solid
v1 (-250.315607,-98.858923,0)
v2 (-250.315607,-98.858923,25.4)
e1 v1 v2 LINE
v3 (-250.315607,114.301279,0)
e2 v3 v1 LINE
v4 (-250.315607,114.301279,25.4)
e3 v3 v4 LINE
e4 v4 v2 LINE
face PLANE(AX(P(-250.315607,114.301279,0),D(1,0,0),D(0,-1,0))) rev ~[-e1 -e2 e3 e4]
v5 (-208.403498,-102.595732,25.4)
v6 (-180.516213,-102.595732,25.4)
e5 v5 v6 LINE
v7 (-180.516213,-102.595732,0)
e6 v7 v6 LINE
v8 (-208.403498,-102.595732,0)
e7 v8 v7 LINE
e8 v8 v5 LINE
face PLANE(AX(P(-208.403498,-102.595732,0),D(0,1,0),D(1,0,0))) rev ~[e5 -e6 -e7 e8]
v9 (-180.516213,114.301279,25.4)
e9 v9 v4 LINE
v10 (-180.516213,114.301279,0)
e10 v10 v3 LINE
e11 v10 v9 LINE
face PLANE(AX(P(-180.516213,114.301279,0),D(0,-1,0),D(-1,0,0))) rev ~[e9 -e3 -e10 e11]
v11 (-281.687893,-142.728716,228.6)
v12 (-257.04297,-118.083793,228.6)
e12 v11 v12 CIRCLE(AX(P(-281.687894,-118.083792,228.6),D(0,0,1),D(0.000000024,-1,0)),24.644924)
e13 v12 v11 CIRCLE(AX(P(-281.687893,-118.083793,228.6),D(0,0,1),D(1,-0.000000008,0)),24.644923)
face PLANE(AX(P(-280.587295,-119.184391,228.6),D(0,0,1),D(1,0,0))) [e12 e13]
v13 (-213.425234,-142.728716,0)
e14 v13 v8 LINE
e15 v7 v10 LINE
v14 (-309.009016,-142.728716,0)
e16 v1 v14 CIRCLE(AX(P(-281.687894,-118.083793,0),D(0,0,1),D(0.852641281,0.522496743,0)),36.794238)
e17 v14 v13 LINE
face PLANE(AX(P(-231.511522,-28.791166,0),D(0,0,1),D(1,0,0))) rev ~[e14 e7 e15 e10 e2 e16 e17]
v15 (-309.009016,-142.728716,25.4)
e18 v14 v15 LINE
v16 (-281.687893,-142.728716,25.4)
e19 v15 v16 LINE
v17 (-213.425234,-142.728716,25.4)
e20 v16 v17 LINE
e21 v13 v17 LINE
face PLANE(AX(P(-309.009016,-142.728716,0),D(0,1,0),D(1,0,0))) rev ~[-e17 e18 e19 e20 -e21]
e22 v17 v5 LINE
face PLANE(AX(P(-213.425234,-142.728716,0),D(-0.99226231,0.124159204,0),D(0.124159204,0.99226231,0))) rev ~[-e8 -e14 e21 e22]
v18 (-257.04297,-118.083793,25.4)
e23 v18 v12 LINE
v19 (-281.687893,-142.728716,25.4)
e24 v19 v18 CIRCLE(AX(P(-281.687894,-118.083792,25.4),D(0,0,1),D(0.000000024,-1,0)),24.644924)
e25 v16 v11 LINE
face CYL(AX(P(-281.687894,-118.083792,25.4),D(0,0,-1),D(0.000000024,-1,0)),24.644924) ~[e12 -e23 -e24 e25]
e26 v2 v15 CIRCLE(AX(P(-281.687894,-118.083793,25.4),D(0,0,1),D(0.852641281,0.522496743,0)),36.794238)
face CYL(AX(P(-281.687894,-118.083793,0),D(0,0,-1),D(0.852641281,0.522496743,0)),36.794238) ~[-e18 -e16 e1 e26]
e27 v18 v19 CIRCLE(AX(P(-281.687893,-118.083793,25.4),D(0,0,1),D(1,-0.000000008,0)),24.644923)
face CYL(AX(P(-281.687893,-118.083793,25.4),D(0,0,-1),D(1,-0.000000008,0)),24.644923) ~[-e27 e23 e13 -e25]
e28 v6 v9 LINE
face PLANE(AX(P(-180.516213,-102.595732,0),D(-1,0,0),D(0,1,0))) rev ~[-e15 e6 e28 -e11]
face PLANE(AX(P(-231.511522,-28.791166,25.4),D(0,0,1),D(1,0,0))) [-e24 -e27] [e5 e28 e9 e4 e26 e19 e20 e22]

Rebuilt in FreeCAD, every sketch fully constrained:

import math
import FreeCAD as App
import Part
import Sketcher

V = App.Vector
Q = App.Units.Quantity

doc = App.newDocument("Part")
body = doc.addObject("PartDesign::Body", "Body")

# Sketch on XY plane
sketch1 = doc.addObject("Sketcher::SketchObject", "Sketch")
body.addObject(sketch1)
sketch1.AttachmentSupport = (doc.XY_Plane, [""])
sketch1.MapMode = "FlatFace"
sketch1.addGeometry([
    Part.LineSegment(V(-250, 114, 0), V(-250, -99, 0)),  # 0
    Part.ArcOfCircle(Part.Circle(V(-282, -118, 0), V(0, 0, 1), 37), math.radians(31), math.radians(222)),  # 1
    Part.LineSegment(V(-309, -143, 0), V(-213, -143, 0)),  # 2
    Part.LineSegment(V(-213, -143, 0), V(-208, -103, 0)),  # 3
    Part.LineSegment(V(-208, -103, 0), V(-181, -103, 0)),  # 4
    Part.LineSegment(V(-181, -103, 0), V(-181, 114, 0)),  # 5
    Part.LineSegment(V(-181, 114, 0), V(-250, 114, 0)),  # 6
], False)
sketch1.addConstraint([
    Sketcher.Constraint("Coincident", 0, 2, 1, 1),
    Sketcher.Constraint("Coincident", 1, 2, 2, 1),
    Sketcher.Constraint("Coincident", 2, 2, 3, 1),
    Sketcher.Constraint("Coincident", 3, 2, 4, 1),
    Sketcher.Constraint("Coincident", 4, 2, 5, 1),
    Sketcher.Constraint("Coincident", 5, 2, 6, 1),
    Sketcher.Constraint("Coincident", 6, 2, 0, 1),
    Sketcher.Constraint("Vertical", 0),
    Sketcher.Constraint("Horizontal", 2),
    Sketcher.Constraint("Horizontal", 4),
    Sketcher.Constraint("Vertical", 5),
    Sketcher.Constraint("Horizontal", 6),
    Sketcher.Constraint("Radius", 1, 36.794238),
    Sketcher.Constraint("DistanceY", 0, 2, 0, 1, 213.160202),
    Sketcher.Constraint("DistanceX", 2, 1, 2, 2, 95.583782),
    Sketcher.Constraint("DistanceY", 5, 1, 5, 2, 216.897011),
    Sketcher.Constraint("DistanceX", 3, 2, -1, 1, 208.403498),
    Sketcher.Constraint("DistanceX", 4, 1, 4, 2, 27.887285),
    Sketcher.Constraint("DistanceX", 6, 2, 6, 1, 69.799394),
    Sketcher.Constraint("DistanceY", 3, 2, -1, 1, 102.595732),
    Sketcher.Constraint("DistanceY", 1, 3, 0, 2, 19.22487),
    Sketcher.Constraint("DistanceX", 1, 2, 0, 2, 58.693409),
])
pad1 = doc.addObject("PartDesign::Pad", "Pad")
body.addObject(pad1)
pad1.Profile = sketch1
pad1.Length = Q("1 in")

# Sketch on XY plane
sketch2 = doc.addObject("Sketcher::SketchObject", "Sketch001")
body.addObject(sketch2)
sketch2.AttachmentSupport = (doc.XY_Plane, [""])
sketch2.MapMode = "FlatFace"
sketch2.AttachmentOffset = App.Placement(V(0, 0, 1 * 25.4), App.Rotation())
sketch2.addGeometry([
    Part.ArcOfCircle(Part.Circle(V(-282, -118, 0), V(0, 0, 1), 25), math.radians(-90), math.radians(0)),
    Part.ArcOfCircle(Part.Circle(V(-282, -118, 0), V(0, 0, 1), 25), math.radians(0), math.radians(270)),
], False)
sketch2.addConstraint([
    Sketcher.Constraint("Tangent", 0, 1, 1, 2),
    Sketcher.Constraint("Coincident", 1, 1, 0, 2),
    Sketcher.Constraint("Horizontal", 0, 3, 1, 1),
    Sketcher.Constraint("Vertical", 1, 3, 0, 1),
    Sketcher.Constraint("Radius", 0, 24.644924),
    Sketcher.Constraint("DistanceX", 1, 1, -1, 1, 257.04297),
    Sketcher.Constraint("DistanceY", 0, 3, -1, 1, 118.083792),
])
pad2 = doc.addObject("PartDesign::Pad", "Pad001")
body.addObject(pad2)
pad2.Profile = sketch2
pad2.Length = Q("8 in")

doc.recompute()
